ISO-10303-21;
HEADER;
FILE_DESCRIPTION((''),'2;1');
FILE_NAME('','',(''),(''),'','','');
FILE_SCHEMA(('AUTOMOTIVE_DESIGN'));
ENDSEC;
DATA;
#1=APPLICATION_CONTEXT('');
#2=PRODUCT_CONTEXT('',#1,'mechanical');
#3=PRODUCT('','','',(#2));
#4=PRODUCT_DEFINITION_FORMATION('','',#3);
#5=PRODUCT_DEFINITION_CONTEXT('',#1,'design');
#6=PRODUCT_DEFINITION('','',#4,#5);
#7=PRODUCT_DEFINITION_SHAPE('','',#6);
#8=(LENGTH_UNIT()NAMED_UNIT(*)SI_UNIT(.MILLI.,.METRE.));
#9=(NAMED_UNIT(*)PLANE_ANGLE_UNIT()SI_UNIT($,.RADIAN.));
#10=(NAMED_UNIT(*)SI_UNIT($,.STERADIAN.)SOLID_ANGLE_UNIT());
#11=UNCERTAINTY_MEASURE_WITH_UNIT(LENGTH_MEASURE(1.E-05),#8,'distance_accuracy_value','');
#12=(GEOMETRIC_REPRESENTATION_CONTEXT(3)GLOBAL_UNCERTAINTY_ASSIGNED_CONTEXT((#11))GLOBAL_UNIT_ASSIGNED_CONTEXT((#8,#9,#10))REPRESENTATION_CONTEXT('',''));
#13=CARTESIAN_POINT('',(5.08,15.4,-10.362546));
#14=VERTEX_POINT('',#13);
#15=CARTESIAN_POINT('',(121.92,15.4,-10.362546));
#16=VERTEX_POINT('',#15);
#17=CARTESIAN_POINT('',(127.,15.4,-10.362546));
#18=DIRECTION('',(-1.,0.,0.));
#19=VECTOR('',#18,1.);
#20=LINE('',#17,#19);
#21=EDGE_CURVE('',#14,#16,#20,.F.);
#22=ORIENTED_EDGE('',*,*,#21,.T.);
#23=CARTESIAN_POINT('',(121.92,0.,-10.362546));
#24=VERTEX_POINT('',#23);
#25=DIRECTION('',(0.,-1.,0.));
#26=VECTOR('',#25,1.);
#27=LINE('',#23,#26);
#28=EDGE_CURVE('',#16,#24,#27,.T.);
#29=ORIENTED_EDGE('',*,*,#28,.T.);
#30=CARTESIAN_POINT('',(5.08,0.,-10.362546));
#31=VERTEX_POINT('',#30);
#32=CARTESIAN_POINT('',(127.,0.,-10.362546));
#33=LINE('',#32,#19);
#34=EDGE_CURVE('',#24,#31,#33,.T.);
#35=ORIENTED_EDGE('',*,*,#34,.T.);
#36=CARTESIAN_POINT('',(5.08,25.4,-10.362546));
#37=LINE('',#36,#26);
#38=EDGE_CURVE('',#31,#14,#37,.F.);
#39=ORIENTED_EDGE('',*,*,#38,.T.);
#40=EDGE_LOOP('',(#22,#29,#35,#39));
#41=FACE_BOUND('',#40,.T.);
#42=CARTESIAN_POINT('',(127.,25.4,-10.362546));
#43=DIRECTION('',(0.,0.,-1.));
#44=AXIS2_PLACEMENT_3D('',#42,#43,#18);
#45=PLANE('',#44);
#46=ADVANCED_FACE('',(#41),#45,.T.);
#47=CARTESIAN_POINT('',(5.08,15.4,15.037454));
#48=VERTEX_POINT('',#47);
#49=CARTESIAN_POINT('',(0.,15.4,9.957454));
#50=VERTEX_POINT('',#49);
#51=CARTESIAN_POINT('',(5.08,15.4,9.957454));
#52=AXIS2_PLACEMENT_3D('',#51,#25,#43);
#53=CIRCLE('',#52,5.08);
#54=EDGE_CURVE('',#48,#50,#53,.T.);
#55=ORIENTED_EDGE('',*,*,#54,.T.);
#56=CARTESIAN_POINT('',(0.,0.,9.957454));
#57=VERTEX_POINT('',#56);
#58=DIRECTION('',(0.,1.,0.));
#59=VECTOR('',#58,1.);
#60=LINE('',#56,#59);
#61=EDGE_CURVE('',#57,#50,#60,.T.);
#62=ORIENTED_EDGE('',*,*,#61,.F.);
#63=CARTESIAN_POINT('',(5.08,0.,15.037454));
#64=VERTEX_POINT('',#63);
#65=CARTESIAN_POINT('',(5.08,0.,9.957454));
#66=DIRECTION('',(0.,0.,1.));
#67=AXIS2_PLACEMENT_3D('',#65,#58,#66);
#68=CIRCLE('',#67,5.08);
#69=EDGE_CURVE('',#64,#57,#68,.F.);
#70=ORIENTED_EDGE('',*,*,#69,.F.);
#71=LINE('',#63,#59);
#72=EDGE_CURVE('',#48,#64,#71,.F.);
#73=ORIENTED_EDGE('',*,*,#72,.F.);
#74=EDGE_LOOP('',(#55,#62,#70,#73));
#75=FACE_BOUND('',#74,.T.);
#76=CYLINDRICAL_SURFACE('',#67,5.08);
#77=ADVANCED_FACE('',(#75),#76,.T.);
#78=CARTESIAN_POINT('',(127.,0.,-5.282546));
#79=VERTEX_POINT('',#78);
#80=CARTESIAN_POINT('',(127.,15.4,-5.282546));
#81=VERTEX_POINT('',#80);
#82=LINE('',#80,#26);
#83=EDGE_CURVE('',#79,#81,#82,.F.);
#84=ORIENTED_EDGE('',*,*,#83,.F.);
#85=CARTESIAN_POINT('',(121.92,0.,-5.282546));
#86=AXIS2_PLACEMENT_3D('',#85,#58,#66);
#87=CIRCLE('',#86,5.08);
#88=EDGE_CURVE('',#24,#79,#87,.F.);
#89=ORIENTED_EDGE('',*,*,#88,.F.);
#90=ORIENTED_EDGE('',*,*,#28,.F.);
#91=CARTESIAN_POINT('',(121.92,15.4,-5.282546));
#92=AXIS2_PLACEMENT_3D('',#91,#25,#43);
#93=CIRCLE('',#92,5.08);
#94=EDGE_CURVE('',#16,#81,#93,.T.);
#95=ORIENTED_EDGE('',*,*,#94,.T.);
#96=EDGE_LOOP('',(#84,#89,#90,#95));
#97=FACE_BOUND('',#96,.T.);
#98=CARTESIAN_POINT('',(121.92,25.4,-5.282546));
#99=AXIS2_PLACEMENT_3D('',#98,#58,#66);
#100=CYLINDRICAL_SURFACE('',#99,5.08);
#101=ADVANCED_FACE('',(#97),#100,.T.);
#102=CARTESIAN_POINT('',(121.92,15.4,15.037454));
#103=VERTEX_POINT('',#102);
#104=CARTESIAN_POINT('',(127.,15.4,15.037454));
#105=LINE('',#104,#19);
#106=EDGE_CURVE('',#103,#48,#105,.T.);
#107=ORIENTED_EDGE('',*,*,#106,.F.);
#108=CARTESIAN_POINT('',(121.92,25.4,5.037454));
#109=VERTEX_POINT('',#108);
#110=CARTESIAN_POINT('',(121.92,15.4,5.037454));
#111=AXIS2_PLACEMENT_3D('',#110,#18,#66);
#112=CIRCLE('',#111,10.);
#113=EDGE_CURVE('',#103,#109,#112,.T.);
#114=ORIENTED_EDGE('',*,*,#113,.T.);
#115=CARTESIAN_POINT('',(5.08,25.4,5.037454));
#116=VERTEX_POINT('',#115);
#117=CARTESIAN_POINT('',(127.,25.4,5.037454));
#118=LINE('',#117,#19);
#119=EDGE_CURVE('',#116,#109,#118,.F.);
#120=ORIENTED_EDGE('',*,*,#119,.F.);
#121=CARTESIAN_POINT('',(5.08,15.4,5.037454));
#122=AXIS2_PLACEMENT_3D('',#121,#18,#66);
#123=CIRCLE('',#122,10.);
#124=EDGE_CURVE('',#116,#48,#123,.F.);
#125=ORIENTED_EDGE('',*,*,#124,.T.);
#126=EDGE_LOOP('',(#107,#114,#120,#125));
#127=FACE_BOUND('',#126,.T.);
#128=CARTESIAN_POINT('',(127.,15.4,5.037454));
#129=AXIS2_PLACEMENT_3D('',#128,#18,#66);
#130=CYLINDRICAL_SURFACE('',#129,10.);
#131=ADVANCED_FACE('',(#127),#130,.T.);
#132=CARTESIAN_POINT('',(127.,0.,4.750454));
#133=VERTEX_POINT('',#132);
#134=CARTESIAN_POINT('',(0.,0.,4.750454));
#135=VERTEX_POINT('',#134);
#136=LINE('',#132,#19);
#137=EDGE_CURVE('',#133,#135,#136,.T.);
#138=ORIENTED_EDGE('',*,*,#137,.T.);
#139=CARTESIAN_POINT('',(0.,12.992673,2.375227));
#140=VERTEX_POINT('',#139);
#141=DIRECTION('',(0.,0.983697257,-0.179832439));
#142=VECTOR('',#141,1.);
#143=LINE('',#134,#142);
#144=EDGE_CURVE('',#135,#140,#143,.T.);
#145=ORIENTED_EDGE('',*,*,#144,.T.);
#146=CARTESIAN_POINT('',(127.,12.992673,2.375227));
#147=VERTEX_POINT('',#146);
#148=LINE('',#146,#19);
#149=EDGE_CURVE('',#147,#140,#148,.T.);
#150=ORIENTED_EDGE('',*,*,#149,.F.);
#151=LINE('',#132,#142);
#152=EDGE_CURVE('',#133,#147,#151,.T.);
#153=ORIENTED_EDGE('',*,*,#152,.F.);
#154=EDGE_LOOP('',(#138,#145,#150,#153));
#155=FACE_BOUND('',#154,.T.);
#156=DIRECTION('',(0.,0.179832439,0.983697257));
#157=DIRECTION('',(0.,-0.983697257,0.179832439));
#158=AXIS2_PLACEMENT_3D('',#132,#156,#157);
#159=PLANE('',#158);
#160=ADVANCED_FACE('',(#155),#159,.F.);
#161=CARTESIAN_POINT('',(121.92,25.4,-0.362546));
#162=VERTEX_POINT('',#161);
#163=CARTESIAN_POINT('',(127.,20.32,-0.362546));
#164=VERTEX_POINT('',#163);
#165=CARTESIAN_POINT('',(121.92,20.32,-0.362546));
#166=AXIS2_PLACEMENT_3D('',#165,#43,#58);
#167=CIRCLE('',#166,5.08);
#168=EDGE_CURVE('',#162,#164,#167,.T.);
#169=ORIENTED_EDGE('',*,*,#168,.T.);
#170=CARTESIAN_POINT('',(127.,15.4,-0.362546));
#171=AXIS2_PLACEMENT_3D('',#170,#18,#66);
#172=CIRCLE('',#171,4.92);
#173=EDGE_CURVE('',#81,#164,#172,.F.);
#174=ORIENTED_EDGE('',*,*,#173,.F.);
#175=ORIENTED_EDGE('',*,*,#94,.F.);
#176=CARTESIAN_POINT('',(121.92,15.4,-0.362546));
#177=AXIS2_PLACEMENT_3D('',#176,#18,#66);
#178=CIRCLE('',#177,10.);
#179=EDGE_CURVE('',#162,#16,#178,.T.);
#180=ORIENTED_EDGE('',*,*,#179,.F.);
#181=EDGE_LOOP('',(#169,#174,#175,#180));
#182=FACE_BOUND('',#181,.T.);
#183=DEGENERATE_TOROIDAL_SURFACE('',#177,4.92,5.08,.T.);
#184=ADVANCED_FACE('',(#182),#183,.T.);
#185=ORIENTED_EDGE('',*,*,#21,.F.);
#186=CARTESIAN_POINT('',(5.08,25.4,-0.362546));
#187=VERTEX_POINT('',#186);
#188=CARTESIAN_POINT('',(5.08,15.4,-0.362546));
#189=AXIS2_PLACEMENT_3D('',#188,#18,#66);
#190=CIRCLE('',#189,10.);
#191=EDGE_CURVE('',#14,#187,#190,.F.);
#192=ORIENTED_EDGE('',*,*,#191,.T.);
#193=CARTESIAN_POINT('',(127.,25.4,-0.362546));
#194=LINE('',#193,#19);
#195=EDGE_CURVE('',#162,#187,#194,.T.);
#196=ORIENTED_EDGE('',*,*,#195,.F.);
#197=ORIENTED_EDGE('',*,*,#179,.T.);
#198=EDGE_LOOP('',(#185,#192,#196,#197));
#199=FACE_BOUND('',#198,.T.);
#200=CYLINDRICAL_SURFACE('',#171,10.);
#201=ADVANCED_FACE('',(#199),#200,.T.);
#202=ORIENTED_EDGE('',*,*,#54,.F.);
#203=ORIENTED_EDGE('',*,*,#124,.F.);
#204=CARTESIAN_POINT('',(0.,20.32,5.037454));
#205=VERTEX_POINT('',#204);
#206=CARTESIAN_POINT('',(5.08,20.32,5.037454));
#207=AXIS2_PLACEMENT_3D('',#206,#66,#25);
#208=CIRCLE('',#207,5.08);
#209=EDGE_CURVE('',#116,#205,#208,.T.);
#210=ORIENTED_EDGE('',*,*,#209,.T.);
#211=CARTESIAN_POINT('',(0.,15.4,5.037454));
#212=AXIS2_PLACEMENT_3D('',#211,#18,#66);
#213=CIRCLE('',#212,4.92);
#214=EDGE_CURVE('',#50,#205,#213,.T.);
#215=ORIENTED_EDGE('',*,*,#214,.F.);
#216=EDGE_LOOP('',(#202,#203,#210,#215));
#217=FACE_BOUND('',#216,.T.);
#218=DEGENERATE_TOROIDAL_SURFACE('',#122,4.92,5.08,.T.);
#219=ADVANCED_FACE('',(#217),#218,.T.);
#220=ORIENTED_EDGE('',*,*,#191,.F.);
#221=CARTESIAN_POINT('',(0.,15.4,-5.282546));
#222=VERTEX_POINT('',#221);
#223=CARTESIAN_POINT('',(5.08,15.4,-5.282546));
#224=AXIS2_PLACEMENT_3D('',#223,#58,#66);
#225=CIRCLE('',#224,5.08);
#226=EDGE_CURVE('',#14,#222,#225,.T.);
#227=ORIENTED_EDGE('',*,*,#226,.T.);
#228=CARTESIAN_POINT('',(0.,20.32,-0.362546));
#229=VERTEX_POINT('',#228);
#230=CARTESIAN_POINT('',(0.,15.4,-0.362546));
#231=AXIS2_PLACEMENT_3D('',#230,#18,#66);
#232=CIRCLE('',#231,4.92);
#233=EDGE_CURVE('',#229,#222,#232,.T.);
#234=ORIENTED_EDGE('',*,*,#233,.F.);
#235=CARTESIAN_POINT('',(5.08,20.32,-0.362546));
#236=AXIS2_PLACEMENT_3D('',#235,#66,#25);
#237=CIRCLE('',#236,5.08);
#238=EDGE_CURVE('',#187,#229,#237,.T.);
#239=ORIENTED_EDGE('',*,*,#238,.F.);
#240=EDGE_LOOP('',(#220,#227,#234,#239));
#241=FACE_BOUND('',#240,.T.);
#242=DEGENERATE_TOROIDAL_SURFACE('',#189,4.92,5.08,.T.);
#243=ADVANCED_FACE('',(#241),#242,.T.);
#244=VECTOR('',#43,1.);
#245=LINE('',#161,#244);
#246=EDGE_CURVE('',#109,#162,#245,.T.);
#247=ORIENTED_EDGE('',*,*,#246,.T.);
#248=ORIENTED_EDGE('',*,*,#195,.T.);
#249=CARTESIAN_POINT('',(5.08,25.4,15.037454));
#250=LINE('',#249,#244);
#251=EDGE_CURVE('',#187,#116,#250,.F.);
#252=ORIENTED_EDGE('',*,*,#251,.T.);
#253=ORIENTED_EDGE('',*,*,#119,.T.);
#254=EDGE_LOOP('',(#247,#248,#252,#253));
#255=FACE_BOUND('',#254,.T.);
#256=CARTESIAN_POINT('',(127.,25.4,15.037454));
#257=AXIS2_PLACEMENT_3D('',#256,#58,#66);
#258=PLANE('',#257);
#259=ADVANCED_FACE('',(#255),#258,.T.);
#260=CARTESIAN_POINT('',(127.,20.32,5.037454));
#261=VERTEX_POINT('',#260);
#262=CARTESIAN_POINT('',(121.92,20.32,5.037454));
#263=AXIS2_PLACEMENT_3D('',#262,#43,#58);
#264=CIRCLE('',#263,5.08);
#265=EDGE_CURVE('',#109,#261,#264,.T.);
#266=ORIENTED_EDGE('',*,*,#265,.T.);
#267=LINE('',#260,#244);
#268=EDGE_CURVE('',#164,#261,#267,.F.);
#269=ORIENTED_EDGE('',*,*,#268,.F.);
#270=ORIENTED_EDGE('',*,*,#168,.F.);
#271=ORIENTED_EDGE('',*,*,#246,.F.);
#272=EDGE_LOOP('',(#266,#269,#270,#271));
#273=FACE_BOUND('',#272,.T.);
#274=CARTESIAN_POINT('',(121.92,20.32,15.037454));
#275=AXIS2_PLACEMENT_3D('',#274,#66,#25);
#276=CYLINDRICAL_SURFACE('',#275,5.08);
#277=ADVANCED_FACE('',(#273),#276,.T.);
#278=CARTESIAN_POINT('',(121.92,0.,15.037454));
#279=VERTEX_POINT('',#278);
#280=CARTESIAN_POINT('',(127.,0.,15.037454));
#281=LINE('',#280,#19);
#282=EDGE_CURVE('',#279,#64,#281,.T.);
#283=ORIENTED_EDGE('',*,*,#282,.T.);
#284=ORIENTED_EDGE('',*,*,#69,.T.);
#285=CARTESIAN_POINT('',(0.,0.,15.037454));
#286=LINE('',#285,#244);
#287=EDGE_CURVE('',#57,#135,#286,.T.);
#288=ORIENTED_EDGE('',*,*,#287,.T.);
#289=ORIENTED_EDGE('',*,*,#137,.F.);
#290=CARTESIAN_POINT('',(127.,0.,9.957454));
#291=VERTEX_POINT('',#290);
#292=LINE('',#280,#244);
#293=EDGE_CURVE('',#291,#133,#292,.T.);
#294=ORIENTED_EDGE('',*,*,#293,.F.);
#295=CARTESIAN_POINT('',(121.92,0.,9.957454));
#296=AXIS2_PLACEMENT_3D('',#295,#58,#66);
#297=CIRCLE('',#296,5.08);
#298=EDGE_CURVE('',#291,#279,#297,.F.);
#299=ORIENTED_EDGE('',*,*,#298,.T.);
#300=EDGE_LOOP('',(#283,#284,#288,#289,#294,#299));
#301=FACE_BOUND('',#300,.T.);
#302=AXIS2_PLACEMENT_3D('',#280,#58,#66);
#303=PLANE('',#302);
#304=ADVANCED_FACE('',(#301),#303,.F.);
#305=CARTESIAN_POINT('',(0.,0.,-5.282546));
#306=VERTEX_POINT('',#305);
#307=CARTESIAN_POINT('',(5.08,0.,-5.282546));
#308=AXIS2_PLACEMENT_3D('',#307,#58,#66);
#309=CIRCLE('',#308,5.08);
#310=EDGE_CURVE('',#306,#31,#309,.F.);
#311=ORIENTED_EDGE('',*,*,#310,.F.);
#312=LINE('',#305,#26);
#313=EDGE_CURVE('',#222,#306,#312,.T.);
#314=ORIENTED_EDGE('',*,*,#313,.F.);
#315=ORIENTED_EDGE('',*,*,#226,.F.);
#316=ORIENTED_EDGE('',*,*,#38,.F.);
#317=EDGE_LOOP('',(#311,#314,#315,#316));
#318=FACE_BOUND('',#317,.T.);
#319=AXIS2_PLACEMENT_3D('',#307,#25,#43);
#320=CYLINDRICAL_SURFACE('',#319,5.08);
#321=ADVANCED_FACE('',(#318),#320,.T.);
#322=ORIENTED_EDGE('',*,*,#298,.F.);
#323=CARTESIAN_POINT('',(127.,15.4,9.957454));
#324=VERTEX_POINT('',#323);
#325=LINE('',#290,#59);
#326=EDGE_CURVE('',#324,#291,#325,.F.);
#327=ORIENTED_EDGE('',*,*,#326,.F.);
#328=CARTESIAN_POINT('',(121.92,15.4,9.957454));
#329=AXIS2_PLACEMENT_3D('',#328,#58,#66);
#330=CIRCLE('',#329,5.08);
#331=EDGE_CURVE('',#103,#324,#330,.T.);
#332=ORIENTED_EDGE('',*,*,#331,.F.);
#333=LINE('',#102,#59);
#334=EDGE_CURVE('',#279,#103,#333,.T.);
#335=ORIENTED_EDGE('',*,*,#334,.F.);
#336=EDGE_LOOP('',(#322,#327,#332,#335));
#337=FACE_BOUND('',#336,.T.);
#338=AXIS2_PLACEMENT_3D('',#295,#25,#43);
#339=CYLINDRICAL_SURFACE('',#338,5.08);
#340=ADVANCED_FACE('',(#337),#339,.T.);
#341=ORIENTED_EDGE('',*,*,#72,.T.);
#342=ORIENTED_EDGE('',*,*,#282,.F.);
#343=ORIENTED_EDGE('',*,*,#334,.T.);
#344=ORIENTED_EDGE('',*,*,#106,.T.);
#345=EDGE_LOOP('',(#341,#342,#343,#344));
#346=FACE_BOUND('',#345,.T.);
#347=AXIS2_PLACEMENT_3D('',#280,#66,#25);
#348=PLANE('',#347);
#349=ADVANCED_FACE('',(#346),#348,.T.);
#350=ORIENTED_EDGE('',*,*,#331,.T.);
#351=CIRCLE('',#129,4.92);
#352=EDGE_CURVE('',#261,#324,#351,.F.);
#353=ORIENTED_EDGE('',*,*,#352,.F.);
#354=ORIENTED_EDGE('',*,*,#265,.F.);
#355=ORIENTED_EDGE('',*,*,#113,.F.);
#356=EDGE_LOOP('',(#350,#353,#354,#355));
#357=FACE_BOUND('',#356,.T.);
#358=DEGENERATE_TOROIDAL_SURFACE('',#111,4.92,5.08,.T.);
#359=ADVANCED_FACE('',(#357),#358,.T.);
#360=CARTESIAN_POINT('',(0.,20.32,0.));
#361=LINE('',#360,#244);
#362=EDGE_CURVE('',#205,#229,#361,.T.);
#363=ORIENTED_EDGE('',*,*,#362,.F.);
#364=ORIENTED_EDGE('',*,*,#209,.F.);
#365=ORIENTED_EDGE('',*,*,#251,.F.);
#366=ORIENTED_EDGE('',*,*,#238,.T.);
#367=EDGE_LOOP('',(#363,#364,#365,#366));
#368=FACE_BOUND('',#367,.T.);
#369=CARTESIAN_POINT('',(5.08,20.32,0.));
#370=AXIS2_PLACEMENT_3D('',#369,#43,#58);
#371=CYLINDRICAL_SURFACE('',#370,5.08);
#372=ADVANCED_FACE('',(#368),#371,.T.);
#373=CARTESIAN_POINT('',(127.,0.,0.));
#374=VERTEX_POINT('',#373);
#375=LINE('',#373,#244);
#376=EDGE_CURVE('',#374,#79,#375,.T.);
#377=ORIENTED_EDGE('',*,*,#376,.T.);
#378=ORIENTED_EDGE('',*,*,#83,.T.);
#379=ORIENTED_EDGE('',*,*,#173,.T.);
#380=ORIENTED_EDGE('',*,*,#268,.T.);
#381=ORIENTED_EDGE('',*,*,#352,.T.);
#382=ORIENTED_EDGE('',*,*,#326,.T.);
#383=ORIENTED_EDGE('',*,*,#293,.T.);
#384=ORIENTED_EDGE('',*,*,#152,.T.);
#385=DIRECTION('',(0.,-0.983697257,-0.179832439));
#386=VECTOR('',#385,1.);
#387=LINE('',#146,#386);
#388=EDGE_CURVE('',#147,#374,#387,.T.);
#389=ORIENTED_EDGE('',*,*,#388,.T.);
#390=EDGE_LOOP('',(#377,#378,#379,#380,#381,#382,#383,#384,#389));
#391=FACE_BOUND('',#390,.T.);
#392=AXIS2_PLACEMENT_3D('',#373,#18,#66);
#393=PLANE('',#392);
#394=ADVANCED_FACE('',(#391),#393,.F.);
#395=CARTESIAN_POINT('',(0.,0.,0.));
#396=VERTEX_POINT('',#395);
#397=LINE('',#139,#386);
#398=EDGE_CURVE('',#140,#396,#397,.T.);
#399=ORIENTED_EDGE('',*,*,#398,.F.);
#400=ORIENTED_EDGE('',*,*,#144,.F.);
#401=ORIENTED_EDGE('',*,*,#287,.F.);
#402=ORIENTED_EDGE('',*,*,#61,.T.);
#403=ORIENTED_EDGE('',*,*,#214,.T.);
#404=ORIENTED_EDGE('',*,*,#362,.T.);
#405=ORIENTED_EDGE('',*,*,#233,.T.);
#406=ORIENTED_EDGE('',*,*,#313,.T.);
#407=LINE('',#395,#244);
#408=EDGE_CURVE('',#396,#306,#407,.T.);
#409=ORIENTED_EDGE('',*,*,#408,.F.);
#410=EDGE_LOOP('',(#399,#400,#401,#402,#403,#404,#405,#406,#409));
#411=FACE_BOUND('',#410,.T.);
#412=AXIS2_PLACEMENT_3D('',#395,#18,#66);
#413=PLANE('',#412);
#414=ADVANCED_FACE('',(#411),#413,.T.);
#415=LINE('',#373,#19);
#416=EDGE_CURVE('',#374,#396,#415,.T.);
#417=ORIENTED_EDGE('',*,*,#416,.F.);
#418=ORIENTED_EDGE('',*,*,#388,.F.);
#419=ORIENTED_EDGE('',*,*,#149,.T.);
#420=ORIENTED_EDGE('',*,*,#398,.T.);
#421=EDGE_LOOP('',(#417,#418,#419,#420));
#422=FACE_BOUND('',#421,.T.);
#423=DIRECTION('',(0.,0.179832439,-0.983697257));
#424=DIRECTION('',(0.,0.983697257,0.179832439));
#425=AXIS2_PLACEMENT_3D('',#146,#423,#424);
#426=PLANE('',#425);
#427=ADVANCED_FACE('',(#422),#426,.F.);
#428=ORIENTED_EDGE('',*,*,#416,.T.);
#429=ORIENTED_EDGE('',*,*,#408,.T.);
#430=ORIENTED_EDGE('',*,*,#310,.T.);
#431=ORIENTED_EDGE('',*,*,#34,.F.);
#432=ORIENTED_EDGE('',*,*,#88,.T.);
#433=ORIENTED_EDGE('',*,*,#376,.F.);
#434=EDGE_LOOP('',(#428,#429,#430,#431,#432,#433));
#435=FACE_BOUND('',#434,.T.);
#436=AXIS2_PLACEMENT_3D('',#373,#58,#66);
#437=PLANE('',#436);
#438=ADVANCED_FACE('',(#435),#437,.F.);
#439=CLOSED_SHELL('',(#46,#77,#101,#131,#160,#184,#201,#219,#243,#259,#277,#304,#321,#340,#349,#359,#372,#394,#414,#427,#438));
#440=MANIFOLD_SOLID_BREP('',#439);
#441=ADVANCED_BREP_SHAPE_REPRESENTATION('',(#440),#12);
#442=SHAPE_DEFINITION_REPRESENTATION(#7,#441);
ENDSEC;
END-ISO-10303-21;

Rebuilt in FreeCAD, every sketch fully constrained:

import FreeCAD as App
import Part
import Sketcher
from FreeCAD import Vector
Q = App.Units.Quantity


def edges_at(feature, points):
    """Names of the edges that pass closest to the given points."""
    edges = feature.Shape.Edges
    near = lambda p: min(range(len(edges)), key=lambda i: edges[i].distToShape(Part.Vertex(*p))[0])
    return sorted({f"Edge{near(p) + 1}" for p in points})

doc = App.newDocument("Part")
params = doc.addObject("Spreadsheet::Sheet", "Params")
for row, (alias, value) in enumerate([
    ("sketch1_width", "1 in"),
    ("sketch1_length", "0.52 in"),
    ("sketch1_height", "0.405 in"),
    ("pad1_length", "5 in"),
    ("fillet_radius", "10 mm"),
    ("fillet2_radius", "0.2 in"),
], start=1):
    params.set(f"A{row}", alias)
    params.set(f"B{row}", "=" + value)
    params.setAlias(f"B{row}", alias)

body = doc.addObject("PartDesign::Body", "Body")

# Sketch on YZ plane
sketch1 = body.newObject("Sketcher::SketchObject", "Sketch")
sketch1.AttachmentSupport = (doc.getObject("YZ_Plane"), [""])
sketch1.MapMode = "FlatFace"
sketch1.addGeometry(Part.LineSegment(Vector(0, 5, 0), Vector(13, 2, 0)), False)
sketch1.addGeometry(Part.LineSegment(Vector(13, 2, 0), Vector(0, 0, 0)), False)
sketch1.addGeometry(Part.LineSegment(Vector(0, 0, 0), Vector(0, -10, 0)), False)
sketch1.addGeometry(Part.LineSegment(Vector(0, -10, 0), Vector(25, -10, 0)), False)
sketch1.addGeometry(Part.LineSegment(Vector(25, -10, 0), Vector(25, 15, 0)), False)
sketch1.addGeometry(Part.LineSegment(Vector(25, 15, 0), Vector(0, 15, 0)), False)
sketch1.addGeometry(Part.LineSegment(Vector(0, 15, 0), Vector(0, 5, 0)), False)
sketch1.addConstraint(Sketcher.Constraint("Coincident", 0, 2, 1, 1))
sketch1.addConstraint(Sketcher.Constraint("Coincident", 1, 2, 2, 1))
sketch1.addConstraint(Sketcher.Constraint("Coincident", 2, 2, 3, 1))
sketch1.addConstraint(Sketcher.Constraint("Coincident", 3, 2, 4, 1))
sketch1.addConstraint(Sketcher.Constraint("Coincident", 4, 2, 5, 1))
sketch1.addConstraint(Sketcher.Constraint("Coincident", 5, 2, 6, 1))
sketch1.addConstraint(Sketcher.Constraint("Coincident", 6, 2, 0, 1))
sketch1.addConstraint(Sketcher.Constraint("Vertical", 2))
sketch1.addConstraint(Sketcher.Constraint("Horizontal", 3))
sketch1.addConstraint(Sketcher.Constraint("Vertical", 4))
sketch1.addConstraint(Sketcher.Constraint("Horizontal", 5))
sketch1.addConstraint(Sketcher.Constraint("Vertical", 6))
sketch1.addConstraint(Sketcher.Constraint("Coincident", 1, 2, -1, 1))
sketch1.addConstraint(Sketcher.Constraint("PointOnObject", 5, 2, -2))
sketch1.addConstraint(Sketcher.Constraint("Equal", 5, 4))
sketch1.addConstraint(Sketcher.Constraint("Equal", 0, 1))
sketch1.addConstraint(Sketcher.Constraint("DistanceX", 3, 1, 3, 2, Q("1 in")))
sketch1.addConstraint(Sketcher.Constraint("Distance", 0, Q("0.52 in")))
sketch1.addConstraint(Sketcher.Constraint("DistanceY", 6, 2, 6, 1, Q("0.405 in")))
sketch1.addConstraint(Sketcher.Constraint("Angle", 0, Q("-10.36 deg")))
sketch1.setExpression("Constraints[16]", "Params.sketch1_width")
sketch1.setExpression("Constraints[17]", "Params.sketch1_length")
sketch1.setExpression("Constraints[18]", "Params.sketch1_height")
pad1 = body.newObject("PartDesign::Pad", "Pad")
pad1.Profile = sketch1
pad1.setExpression("Length", "Params.pad1_length")
doc.recompute()

fillet = body.newObject("PartDesign::Fillet", "Fillet")
fillet.Base = (pad1, edges_at(pad1, [(63.5, 25.4, 15.037), (63.5, 25.4, -10.363)]))
fillet.setExpression("Radius", "Params.fillet_radius")
doc.recompute()

fillet2 = body.newObject("PartDesign::Fillet", "Fillet001")
fillet2.Base = (fillet, edges_at(fillet, [
    (0, 25.4, 2.337),
    (0, 7.7, -10.363),
    (0, 22.471, -7.434),
    (0, 22.471, 12.109),
    (127, 25.4, 2.337),
    (127, 7.7, -10.363),
    (127, 22.471, -7.434),
    (127, 22.471, 12.109),
    (127, 7.7, 15.037),
    (0, 7.7, 15.037),
]))
fillet2.setExpression("Radius", "Params.fillet2_radius")

doc.recompute()
